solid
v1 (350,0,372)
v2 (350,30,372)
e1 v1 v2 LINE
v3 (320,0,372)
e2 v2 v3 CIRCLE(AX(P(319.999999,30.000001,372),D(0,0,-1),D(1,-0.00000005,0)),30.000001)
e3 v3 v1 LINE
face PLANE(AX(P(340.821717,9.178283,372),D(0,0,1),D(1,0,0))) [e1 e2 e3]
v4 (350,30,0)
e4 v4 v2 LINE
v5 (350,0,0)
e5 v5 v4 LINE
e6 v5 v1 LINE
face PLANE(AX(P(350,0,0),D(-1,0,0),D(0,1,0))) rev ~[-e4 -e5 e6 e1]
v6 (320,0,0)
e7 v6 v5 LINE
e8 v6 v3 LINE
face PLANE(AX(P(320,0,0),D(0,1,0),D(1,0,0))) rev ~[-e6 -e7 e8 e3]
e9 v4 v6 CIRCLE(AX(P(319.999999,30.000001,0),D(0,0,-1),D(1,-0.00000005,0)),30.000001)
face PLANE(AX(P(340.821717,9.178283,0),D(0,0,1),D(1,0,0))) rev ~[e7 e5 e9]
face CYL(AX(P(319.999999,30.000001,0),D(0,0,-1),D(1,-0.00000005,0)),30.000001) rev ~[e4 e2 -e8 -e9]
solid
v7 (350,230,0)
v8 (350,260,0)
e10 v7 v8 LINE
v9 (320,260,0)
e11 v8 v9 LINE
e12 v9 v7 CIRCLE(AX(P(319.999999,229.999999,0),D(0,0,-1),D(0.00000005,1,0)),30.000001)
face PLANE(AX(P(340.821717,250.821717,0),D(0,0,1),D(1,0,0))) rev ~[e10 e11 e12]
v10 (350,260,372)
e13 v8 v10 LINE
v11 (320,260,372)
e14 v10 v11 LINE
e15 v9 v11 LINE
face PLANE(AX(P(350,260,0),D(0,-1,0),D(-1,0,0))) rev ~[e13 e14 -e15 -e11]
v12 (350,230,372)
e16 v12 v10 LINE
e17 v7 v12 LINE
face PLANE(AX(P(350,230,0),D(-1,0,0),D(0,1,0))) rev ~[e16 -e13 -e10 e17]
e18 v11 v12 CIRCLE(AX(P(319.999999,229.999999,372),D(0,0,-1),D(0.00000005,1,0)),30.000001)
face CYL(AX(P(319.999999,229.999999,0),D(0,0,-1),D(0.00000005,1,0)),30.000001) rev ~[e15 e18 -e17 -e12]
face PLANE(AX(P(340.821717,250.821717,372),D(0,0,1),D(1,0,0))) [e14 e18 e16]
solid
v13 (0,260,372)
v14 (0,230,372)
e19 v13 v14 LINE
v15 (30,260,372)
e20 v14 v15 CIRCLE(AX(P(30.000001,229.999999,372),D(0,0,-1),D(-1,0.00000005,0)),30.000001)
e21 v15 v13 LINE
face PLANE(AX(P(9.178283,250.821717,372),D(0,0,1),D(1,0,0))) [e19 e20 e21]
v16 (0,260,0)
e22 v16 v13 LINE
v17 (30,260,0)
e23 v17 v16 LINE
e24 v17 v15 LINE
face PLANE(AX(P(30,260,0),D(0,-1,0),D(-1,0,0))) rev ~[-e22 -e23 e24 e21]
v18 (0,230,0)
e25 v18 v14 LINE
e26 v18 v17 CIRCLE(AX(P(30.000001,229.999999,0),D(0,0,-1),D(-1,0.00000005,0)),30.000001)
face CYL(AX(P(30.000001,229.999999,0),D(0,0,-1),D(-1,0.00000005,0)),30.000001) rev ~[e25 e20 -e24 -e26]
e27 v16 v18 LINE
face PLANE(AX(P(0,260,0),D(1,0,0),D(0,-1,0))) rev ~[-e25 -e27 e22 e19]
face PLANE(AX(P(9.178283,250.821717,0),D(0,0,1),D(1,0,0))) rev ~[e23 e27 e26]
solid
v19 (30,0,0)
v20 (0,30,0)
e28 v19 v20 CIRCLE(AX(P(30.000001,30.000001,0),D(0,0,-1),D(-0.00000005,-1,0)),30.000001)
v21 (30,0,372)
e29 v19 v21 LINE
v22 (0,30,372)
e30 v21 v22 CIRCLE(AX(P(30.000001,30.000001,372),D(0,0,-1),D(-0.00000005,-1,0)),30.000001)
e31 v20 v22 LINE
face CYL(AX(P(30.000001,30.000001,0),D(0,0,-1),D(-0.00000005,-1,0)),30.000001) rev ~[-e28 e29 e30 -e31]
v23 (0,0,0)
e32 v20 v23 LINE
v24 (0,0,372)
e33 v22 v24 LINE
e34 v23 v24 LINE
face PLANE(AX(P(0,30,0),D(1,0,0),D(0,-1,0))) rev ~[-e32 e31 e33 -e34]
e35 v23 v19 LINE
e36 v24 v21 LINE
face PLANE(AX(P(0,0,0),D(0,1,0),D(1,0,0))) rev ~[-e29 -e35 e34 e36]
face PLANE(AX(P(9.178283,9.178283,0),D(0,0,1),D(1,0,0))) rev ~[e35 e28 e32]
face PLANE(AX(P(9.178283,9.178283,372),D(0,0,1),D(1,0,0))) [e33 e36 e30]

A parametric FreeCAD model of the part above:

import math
import FreeCAD as App
import Part
import Sketcher

doc = App.newDocument("Part")
body = doc.addObject("PartDesign::Body", "Body")
body.AllowCompound = True

# Sketch on XY plane
sketch1 = doc.addObject("Sketcher::SketchObject", "Sketch")
body.addObject(sketch1)
sketch1.AttachmentSupport = (doc.XY_Plane, [""])
sketch1.MapMode = "FlatFace"
sketch1.addGeometry([
    Part.ArcOfCircle(Part.Circle(App.Vector(30.000001, 229.999999, 0), App.Vector(0, 0, 1), 30.000001), math.radians(90.000003), math.radians(179.999997)),  # 0
    Part.LineSegment(App.Vector(30, 260, 0), App.Vector(0, 260, 0)),  # 1
    Part.LineSegment(App.Vector(0, 260, 0), App.Vector(0, 230, 0)),  # 2
    Part.LineSegment(App.Vector(350, 260, 0), App.Vector(320, 260, 0)),  # 3
    Part.ArcOfCircle(Part.Circle(App.Vector(319.999999, 229.999999, 0), App.Vector(0, 0, 1), 30.000001), math.radians(0.000003), math.radians(89.999997)),  # 4
    Part.LineSegment(App.Vector(350, 230, 0), App.Vector(350, 260, 0)),  # 5
    Part.LineSegment(App.Vector(350, 0, 0), App.Vector(350, 30, 0)),  # 6
    Part.ArcOfCircle(Part.Circle(App.Vector(319.999999, 30.000001, 0), App.Vector(0, 0, 1), 30.000001), math.radians(-89.999997), math.radians(-0.000003)),  # 7
    Part.LineSegment(App.Vector(320, 0, 0), App.Vector(350, 0, 0)),  # 8
    Part.LineSegment(App.Vector(0, 0, 0), App.Vector(30, 0, 0)),  # 9
    Part.ArcOfCircle(Part.Circle(App.Vector(30.000001, 30.000001, 0), App.Vector(0, 0, 1), 30.000001), math.radians(-179.999997), math.radians(-90.000003)),  # 10
    Part.LineSegment(App.Vector(0, 30, 0), App.Vector(0, 0, 0)),  # 11
], False)
sketch1.addConstraint([
    Sketcher.Constraint("Tangent", 0, 1, 1, 1),
    Sketcher.Constraint("Coincident", 1, 2, 2, 1),
    Sketcher.Constraint("Tangent", 2, 2, 0, 2),
    Sketcher.Constraint("Tangent", 3, 2, 4, 2),
    Sketcher.Constraint("Tangent", 4, 1, 5, 1),
    Sketcher.Constraint("Coincident", 5, 2, 3, 1),
    Sketcher.Constraint("Tangent", 6, 2, 7, 2),
    Sketcher.Constraint("Tangent", 7, 1, 8, 1),
    Sketcher.Constraint("Coincident", 8, 2, 6, 1),
    Sketcher.Constraint("Tangent", 9, 2, 10, 2),
    Sketcher.Constraint("Tangent", 10, 1, 11, 1),
    Sketcher.Constraint("Coincident", 11, 2, 9, 1),
    Sketcher.Constraint("Horizontal", 1),
    Sketcher.Constraint("Vertical", 2),
    Sketcher.Constraint("Horizontal", 3),
    Sketcher.Constraint("Vertical", 5),
    Sketcher.Constraint("Vertical", 6),
    Sketcher.Constraint("Horizontal", 8),
    Sketcher.Constraint("Horizontal", 9),
    Sketcher.Constraint("Vertical", 11),
    Sketcher.Constraint("Coincident", 11, 2, -1, 1),
    Sketcher.Constraint("Equal", 0, 4),
    Sketcher.Constraint("Equal", 4, 7),
    Sketcher.Constraint("Equal", 7, 10),
    Sketcher.Constraint("PointOnObject", 1, 2, -2),
    Sketcher.Constraint("PointOnObject", 7, 1, -1),
    Sketcher.Constraint("Horizontal", 0, 3, 4, 3),
    Sketcher.Constraint("Vertical", 4, 3, 7, 3),
    Sketcher.Constraint("Radius", 0, 30.000001),
    Sketcher.Constraint("DistanceY", -1, 1, 0, 3, 229.999999),
    Sketcher.Constraint("DistanceX", -1, 1, 4, 3, 319.999999),
])
pad1 = doc.addObject("PartDesign::Pad", "Pad")
body.addObject(pad1)
pad1.Profile = sketch1
pad1.Length = 372

doc.recompute()
